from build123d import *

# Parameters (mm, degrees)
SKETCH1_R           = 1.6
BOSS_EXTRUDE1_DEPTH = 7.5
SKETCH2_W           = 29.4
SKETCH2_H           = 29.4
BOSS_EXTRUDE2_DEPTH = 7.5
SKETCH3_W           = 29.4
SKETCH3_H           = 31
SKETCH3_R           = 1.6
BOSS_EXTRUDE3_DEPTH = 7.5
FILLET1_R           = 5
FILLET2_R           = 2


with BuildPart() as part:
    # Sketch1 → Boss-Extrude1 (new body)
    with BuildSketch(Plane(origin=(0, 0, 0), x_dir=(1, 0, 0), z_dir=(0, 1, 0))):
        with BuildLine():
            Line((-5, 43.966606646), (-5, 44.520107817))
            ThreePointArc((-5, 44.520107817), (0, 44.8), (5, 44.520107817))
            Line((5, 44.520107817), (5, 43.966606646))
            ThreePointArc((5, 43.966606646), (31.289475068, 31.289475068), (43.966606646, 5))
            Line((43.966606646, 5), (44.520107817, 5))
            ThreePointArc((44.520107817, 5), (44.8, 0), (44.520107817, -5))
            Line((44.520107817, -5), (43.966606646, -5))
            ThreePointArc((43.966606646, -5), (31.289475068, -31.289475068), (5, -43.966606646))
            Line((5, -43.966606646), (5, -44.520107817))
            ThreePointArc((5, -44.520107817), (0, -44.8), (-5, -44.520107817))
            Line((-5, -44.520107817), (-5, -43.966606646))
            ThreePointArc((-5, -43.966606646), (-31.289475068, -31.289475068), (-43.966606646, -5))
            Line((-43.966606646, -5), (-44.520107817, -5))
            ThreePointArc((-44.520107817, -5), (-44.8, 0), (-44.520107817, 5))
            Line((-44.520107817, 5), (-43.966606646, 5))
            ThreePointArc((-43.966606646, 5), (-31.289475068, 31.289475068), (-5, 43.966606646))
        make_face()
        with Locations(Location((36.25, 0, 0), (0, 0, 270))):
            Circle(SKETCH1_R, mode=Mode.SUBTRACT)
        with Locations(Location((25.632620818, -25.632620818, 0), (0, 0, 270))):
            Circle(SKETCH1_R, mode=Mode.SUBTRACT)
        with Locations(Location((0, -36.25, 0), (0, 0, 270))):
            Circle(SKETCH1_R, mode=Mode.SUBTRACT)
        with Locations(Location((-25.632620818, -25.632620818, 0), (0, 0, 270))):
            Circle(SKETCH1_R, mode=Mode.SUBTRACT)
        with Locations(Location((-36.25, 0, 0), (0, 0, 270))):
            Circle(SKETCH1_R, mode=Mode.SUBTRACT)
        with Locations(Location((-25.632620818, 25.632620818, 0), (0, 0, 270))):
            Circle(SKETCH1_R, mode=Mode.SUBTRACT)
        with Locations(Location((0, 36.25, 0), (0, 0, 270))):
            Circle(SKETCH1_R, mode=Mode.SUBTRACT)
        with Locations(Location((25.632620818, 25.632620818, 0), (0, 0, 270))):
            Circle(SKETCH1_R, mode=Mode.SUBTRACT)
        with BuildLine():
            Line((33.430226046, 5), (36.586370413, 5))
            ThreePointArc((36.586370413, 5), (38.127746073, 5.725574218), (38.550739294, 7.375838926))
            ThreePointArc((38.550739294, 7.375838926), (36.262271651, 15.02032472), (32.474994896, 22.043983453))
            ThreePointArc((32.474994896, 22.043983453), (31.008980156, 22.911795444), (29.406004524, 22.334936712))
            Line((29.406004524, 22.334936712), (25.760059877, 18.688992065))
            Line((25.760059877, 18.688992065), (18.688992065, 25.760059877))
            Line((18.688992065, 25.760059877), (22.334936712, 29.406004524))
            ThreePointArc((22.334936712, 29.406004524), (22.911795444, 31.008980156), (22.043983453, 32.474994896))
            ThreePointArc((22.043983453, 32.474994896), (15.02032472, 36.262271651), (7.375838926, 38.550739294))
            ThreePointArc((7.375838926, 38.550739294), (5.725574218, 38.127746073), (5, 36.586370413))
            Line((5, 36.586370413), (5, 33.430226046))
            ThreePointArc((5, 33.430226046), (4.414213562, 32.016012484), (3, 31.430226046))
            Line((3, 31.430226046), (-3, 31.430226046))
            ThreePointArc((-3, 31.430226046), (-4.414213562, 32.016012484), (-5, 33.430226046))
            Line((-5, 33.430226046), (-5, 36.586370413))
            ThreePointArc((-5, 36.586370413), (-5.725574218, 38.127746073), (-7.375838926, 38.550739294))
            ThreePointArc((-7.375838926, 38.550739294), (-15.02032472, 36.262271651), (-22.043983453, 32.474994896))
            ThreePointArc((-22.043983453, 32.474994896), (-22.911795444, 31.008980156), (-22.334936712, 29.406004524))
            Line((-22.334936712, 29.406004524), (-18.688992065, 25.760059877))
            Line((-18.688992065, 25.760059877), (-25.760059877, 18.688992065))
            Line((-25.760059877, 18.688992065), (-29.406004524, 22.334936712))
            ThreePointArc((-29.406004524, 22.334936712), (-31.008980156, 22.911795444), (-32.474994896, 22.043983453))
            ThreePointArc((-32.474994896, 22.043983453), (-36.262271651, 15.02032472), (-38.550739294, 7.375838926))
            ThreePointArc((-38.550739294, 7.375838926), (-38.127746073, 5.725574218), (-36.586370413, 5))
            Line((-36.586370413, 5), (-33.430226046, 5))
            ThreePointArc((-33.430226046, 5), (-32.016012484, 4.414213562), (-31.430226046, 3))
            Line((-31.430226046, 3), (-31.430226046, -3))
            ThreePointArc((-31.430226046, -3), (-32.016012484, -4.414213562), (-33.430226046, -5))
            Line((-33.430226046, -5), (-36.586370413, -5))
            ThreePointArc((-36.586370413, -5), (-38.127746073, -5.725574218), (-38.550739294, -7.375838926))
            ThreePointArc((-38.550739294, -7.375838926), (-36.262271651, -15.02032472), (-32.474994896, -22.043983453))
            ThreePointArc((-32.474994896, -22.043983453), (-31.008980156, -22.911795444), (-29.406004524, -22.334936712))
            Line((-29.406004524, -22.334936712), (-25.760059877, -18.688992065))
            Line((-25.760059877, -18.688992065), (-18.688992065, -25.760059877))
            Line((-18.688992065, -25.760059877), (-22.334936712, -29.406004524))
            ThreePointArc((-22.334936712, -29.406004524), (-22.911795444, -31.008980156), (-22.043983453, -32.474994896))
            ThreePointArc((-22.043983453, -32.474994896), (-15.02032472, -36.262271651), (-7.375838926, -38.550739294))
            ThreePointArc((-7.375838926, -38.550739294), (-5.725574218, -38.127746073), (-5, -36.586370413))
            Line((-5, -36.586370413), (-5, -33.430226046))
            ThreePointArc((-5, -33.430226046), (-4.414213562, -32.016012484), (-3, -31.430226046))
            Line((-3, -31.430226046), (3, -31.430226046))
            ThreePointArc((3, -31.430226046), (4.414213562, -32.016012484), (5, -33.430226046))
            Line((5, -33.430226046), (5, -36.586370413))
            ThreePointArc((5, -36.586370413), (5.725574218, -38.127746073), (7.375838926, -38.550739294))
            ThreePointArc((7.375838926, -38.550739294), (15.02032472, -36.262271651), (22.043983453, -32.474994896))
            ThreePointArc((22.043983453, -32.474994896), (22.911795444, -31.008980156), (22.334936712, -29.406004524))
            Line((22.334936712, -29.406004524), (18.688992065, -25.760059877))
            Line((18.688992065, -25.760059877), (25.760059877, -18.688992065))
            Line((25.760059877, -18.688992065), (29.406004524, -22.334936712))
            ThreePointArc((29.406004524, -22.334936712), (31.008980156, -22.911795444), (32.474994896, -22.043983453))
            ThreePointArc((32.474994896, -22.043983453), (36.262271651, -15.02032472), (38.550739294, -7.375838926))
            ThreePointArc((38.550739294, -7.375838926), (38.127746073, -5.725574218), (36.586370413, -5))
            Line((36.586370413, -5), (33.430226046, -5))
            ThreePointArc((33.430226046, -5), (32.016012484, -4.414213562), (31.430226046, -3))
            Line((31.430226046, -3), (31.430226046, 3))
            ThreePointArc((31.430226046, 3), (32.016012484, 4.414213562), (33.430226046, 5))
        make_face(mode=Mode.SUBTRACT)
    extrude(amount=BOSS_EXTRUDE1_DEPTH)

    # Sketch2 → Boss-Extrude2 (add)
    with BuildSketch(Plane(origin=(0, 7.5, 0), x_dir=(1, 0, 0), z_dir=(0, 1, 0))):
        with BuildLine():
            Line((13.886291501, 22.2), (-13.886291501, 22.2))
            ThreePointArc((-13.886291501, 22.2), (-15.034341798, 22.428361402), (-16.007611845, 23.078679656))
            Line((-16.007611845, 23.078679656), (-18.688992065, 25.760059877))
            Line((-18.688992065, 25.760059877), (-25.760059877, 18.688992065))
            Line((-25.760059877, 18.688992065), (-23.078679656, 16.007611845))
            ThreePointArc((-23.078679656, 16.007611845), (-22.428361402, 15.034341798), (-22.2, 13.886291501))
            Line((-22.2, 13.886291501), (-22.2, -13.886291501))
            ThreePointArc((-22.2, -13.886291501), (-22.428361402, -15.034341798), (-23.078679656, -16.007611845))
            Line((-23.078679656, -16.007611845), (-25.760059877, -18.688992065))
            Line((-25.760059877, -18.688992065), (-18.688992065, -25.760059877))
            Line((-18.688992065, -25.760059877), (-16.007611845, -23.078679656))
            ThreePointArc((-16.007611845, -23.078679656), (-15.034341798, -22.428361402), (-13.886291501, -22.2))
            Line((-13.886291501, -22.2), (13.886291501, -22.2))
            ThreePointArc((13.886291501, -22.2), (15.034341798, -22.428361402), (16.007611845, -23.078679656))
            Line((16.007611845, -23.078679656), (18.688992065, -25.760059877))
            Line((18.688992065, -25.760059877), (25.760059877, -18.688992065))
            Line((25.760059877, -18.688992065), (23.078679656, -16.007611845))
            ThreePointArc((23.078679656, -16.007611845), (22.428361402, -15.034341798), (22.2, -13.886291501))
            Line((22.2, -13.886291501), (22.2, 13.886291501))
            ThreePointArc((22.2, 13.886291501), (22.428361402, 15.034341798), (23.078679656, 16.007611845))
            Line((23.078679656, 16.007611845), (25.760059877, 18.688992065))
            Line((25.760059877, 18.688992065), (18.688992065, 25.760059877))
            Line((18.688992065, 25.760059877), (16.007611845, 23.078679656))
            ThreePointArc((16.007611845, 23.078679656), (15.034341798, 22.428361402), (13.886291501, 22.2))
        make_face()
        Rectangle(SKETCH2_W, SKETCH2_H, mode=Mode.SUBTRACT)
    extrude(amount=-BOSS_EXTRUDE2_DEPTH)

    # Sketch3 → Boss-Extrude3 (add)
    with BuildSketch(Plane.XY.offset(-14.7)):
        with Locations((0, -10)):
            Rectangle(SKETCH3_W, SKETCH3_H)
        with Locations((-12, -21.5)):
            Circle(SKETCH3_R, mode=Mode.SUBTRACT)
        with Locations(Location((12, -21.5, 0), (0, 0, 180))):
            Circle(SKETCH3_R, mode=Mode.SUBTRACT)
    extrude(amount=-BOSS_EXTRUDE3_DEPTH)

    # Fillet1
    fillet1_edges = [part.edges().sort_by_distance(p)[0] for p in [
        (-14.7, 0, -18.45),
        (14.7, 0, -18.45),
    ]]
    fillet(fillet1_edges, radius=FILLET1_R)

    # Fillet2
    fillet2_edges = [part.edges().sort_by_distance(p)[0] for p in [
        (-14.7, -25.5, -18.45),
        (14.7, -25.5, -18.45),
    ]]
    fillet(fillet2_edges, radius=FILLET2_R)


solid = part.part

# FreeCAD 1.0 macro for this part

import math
import FreeCAD as App
import Part
import Sketcher
Q = App.Units.Quantity


def edges_at(feature, points):
    """Names of the edges that pass closest to the given points."""
    edges = feature.Shape.Edges
    near = lambda p: min(range(len(edges)), key=lambda i: edges[i].distToShape(Part.Vertex(*p))[0])
    return sorted({f"Edge{near(p) + 1}" for p in points})

doc = App.newDocument("Part")
body = doc.addObject("PartDesign::Body", "Body")

sketch1 = body.newObject("Sketcher::SketchObject", "Sketch")
sketch1.AttachmentSupport = (doc.getObject("XZ_Plane"), [""])
sketch1.MapMode = "FlatFace"
sketch1.addGeometry([
    Part.LineSegment(App.Vector(-5, -44.5, 0), App.Vector(-5, -44, 0)),
    Part.ArcOfCircle(Part.Circle(App.Vector(0, 0, 0), App.Vector(0, 0, 1), 44.2), math.radians(-174), math.radians(-96)),
    Part.LineSegment(App.Vector(-44, -5, 0), App.Vector(-44.5, -5, 0)),
    Part.ArcOfCircle(Part.Circle(App.Vector(0, 0, 0), App.Vector(0, 0, 1), 44.8), math.radians(173.59), math.radians(186.41)),
    Part.LineSegment(App.Vector(-44.5, 5, 0), App.Vector(-44, 5, 0)),
    Part.ArcOfCircle(Part.Circle(App.Vector(0, 0, 0), App.Vector(0, 0, 1), 44.2), math.radians(96), math.radians(174)),
    Part.LineSegment(App.Vector(-5, 44, 0), App.Vector(-5, 44.5, 0)),
    Part.ArcOfCircle(Part.Circle(App.Vector(0, 0, 0), App.Vector(0, 0, 1), 44.8), math.radians(83.59), math.radians(96.41)),
    Part.LineSegment(App.Vector(5, 44.5, 0), App.Vector(5, 44, 0)),
    Part.ArcOfCircle(Part.Circle(App.Vector(0, 0, 0), App.Vector(0, 0, 1), 44.2), math.radians(6), math.radians(84)),
    Part.LineSegment(App.Vector(44, 5, 0), App.Vector(44.5, 5, 0)),
    Part.ArcOfCircle(Part.Circle(App.Vector(0, 0, 0), App.Vector(0, 0, 1), 44.8), math.radians(-6.41), math.radians(6.41)),
    Part.LineSegment(App.Vector(44.5, -5, 0), App.Vector(44, -5, 0)),
    Part.ArcOfCircle(Part.Circle(App.Vector(0, 0, 0), App.Vector(0, 0, 1), 44.2), math.radians(-84), math.radians(-6)),
    Part.LineSegment(App.Vector(5, -44, 0), App.Vector(5, -44.5, 0)),
    Part.ArcOfCircle(Part.Circle(App.Vector(0, 0, 0), App.Vector(0, 0, 1), 44.8), math.radians(-96.41), math.radians(-83.59)),
    Part.Circle(App.Vector(25.6, 25.6, 0), App.Vector(0, 0, 1), 1.6),
    Part.Circle(App.Vector(0, 36.2, 0), App.Vector(0, 0, 1), 1.6),
    Part.Circle(App.Vector(-25.6, 25.6, 0), App.Vector(0, 0, 1), 1.6),
    Part.Circle(App.Vector(36.2, 0, 0), App.Vector(0, 0, 1), 1.6),
    Part.Circle(App.Vector(25.6, -25.6, 0), App.Vector(0, 0, 1), 1.6),
    Part.ArcOfCircle(Part.Circle(App.Vector(33.4, -3, 0), App.Vector(0, 0, 1), 2), math.radians(-180), math.radians(-90)),
    Part.LineSegment(App.Vector(31.4, -3, 0), App.Vector(31.4, 3, 0)),
    Part.ArcOfCircle(Part.Circle(App.Vector(33.4, 3, 0), App.Vector(0, 0, 1), 2), math.radians(90), math.radians(180)),
    Part.LineSegment(App.Vector(33.4, 5, 0), App.Vector(36.6, 5, 0)),
    Part.ArcOfCircle(Part.Circle(App.Vector(36.6, 7, 0), App.Vector(0, 0, 1), 2), math.radians(-90), math.radians(11)),
    Part.ArcOfCircle(Part.Circle(App.Vector(0, 0, 0), App.Vector(0, 0, 1), 39.2), math.radians(11), math.radians(34)),
    Part.ArcOfCircle(Part.Circle(App.Vector(30.8, 20.9, 0), App.Vector(0, 0, 1), 2), math.radians(34), math.radians(135)),
    Part.LineSegment(App.Vector(29.4, 22.3, 0), App.Vector(25.8, 18.7, 0)),
    Part.LineSegment(App.Vector(25.8, 18.7, 0), App.Vector(18.7, 25.8, 0)),
    Part.LineSegment(App.Vector(18.7, 25.8, 0), App.Vector(22.3, 29.4, 0)),
    Part.ArcOfCircle(Part.Circle(App.Vector(20.9, 30.8, 0), App.Vector(0, 0, 1), 2), math.radians(-45), math.radians(56)),
    Part.ArcOfCircle(Part.Circle(App.Vector(0, 0, 0), App.Vector(0, 0, 1), 39.2), math.radians(56), math.radians(79)),
    Part.ArcOfCircle(Part.Circle(App.Vector(7, 36.6, 0), App.Vector(0, 0, 1), 2), math.radians(79), math.radians(180)),
    Part.LineSegment(App.Vector(5, 36.6, 0), App.Vector(5, 33.4, 0)),
    Part.ArcOfCircle(Part.Circle(App.Vector(3, 33.4, 0), App.Vector(0, 0, 1), 2), math.radians(-90), math.radians(0)),
    Part.LineSegment(App.Vector(3, 31.4, 0), App.Vector(-3, 31.4, 0)),
    Part.ArcOfCircle(Part.Circle(App.Vector(-3, 33.4, 0), App.Vector(0, 0, 1), 2), math.radians(-180), math.radians(-90)),
    Part.LineSegment(App.Vector(-5, 33.4, 0), App.Vector(-5, 36.6, 0)),
    Part.ArcOfCircle(Part.Circle(App.Vector(-7, 36.6, 0), App.Vector(0, 0, 1), 2), math.radians(0), math.radians(101)),
    Part.ArcOfCircle(Part.Circle(App.Vector(0, 0, 0), App.Vector(0, 0, 1), 39.2), math.radians(101), math.radians(124)),
    Part.ArcOfCircle(Part.Circle(App.Vector(-20.9, 30.8, 0), App.Vector(0, 0, 1), 2), math.radians(124), math.radians(225)),
    Part.LineSegment(App.Vector(-22.3, 29.4, 0), App.Vector(-18.7, 25.8, 0)),
    Part.LineSegment(App.Vector(-18.7, 25.8, 0), App.Vector(-25.8, 18.7, 0)),
    Part.LineSegment(App.Vector(-25.8, 18.7, 0), App.Vector(-29.4, 22.3, 0)),
    Part.ArcOfCircle(Part.Circle(App.Vector(-30.8, 20.9, 0), App.Vector(0, 0, 1), 2), math.radians(45), math.radians(146)),
    Part.ArcOfCircle(Part.Circle(App.Vector(0, 0, 0), App.Vector(0, 0, 1), 39.2), math.radians(146), math.radians(169)),
    Part.ArcOfCircle(Part.Circle(App.Vector(-36.6, 7, 0), App.Vector(0, 0, 1), 2), math.radians(169), math.radians(270)),
    Part.LineSegment(App.Vector(-36.6, 5, 0), App.Vector(-33.4, 5, 0)),
    Part.ArcOfCircle(Part.Circle(App.Vector(-33.4, 3, 0), App.Vector(0, 0, 1), 2), math.radians(0), math.radians(90)),
    Part.LineSegment(App.Vector(-31.4, 3, 0), App.Vector(-31.4, -3, 0)),
    Part.ArcOfCircle(Part.Circle(App.Vector(-33.4, -3, 0), App.Vector(0, 0, 1), 2), math.radians(-90), math.radians(0)),
    Part.LineSegment(App.Vector(-33.4, -5, 0), App.Vector(-36.6, -5, 0)),
    Part.ArcOfCircle(Part.Circle(App.Vector(-36.6, -7, 0), App.Vector(0, 0, 1), 2), math.radians(90), math.radians(191)),
    Part.ArcOfCircle(Part.Circle(App.Vector(0, 0, 0), App.Vector(0, 0, 1), 39.2), math.radians(-169), math.radians(-146)),
    Part.ArcOfCircle(Part.Circle(App.Vector(-30.8, -20.9, 0), App.Vector(0, 0, 1), 2), math.radians(-146), math.radians(-45)),
    Part.LineSegment(App.Vector(-29.4, -22.3, 0), App.Vector(-25.8, -18.7, 0)),
    Part.LineSegment(App.Vector(-25.8, -18.7, 0), App.Vector(-18.7, -25.8, 0)),
    Part.LineSegment(App.Vector(-18.7, -25.8, 0), App.Vector(-22.3, -29.4, 0)),
    Part.ArcOfCircle(Part.Circle(App.Vector(-20.9, -30.8, 0), App.Vector(0, 0, 1), 2), math.radians(135), math.radians(236)),
    Part.ArcOfCircle(Part.Circle(App.Vector(0, 0, 0), App.Vector(0, 0, 1), 39.2), math.radians(-124), math.radians(-101)),
    Part.ArcOfCircle(Part.Circle(App.Vector(-7, -36.6, 0), App.Vector(0, 0, 1), 2), math.radians(-101), math.radians(0)),
    Part.LineSegment(App.Vector(-5, -36.6, 0), App.Vector(-5, -33.4, 0)),
    Part.ArcOfCircle(Part.Circle(App.Vector(-3, -33.4, 0), App.Vector(0, 0, 1), 2), math.radians(90), math.radians(180)),
    Part.LineSegment(App.Vector(-3, -31.4, 0), App.Vector(3, -31.4, 0)),
    Part.ArcOfCircle(Part.Circle(App.Vector(3, -33.4, 0), App.Vector(0, 0, 1), 2), math.radians(0), math.radians(90)),
    Part.LineSegment(App.Vector(5, -33.4, 0), App.Vector(5, -36.6, 0)),
    Part.ArcOfCircle(Part.Circle(App.Vector(7, -36.6, 0), App.Vector(0, 0, 1), 2), math.radians(180), math.radians(281)),
    Part.ArcOfCircle(Part.Circle(App.Vector(0, 0, 0), App.Vector(0, 0, 1), 39.2), math.radians(-79), math.radians(-56)),
    Part.ArcOfCircle(Part.Circle(App.Vector(20.9, -30.8, 0), App.Vector(0, 0, 1), 2), math.radians(-56), math.radians(45)),
    Part.LineSegment(App.Vector(22.3, -29.4, 0), App.Vector(18.7, -25.8, 0)),
    Part.LineSegment(App.Vector(18.7, -25.8, 0), App.Vector(25.8, -18.7, 0)),
    Part.LineSegment(App.Vector(25.8, -18.7, 0), App.Vector(29.4, -22.3, 0)),
    Part.ArcOfCircle(Part.Circle(App.Vector(30.8, -20.9, 0), App.Vector(0, 0, 1), 2), math.radians(-135), math.radians(-34)),
    Part.ArcOfCircle(Part.Circle(App.Vector(0, 0, 0), App.Vector(0, 0, 1), 39.2), math.radians(-34), math.radians(-11)),
    Part.ArcOfCircle(Part.Circle(App.Vector(36.6, -7, 0), App.Vector(0, 0, 1), 2), math.radians(-11), math.radians(90)),
    Part.LineSegment(App.Vector(36.6, -5, 0), App.Vector(33.4, -5, 0)),
    Part.Circle(App.Vector(-36.2, 0, 0), App.Vector(0, 0, 1), 1.6),
    Part.Circle(App.Vector(0, -36.2, 0), App.Vector(0, 0, 1), 1.6),
    Part.Circle(App.Vector(-25.6, -25.6, 0), App.Vector(0, 0, 1), 1.6),
], False)
sketch1.addConstraint([
    Sketcher.Constraint("Coincident", 0, 2, 1, 2),
    Sketcher.Constraint("Coincident", 1, 1, 2, 1),
    Sketcher.Constraint("Coincident", 2, 2, 3, 2),
    Sketcher.Constraint("Coincident", 3, 1, 4, 1),
    Sketcher.Constraint("Coincident", 4, 2, 5, 2),
    Sketcher.Constraint("Coincident", 5, 1, 6, 1),
    Sketcher.Constraint("Coincident", 6, 2, 7, 2),
    Sketcher.Constraint("Coincident", 7, 1, 8, 1),
    Sketcher.Constraint("Coincident", 8, 2, 9, 2),
    Sketcher.Constraint("Coincident", 9, 1, 10, 1),
    Sketcher.Constraint("Coincident", 10, 2, 11, 2),
    Sketcher.Constraint("Coincident", 11, 1, 12, 1),
    Sketcher.Constraint("Coincident", 12, 2, 13, 2),
    Sketcher.Constraint("Coincident", 13, 1, 14, 1),
    Sketcher.Constraint("Coincident", 14, 2, 15, 2),
    Sketcher.Constraint("Coincident", 15, 1, 0, 1),
    Sketcher.Constraint("Tangent", 21, 1, 22, 1),
    Sketcher.Constraint("Tangent", 22, 2, 23, 2),
    Sketcher.Constraint("Tangent", 23, 1, 24, 1),
    Sketcher.Constraint("Tangent", 24, 2, 25, 1),
    Sketcher.Constraint("Tangent", 25, 2, 26, 1),
    Sketcher.Constraint("Tangent", 26, 2, 27, 1),
    Sketcher.Constraint("Tangent", 27, 2, 28, 1),
    Sketcher.Constraint("Coincident", 28, 2, 29, 1),
    Sketcher.Constraint("Coincident", 29, 2, 30, 1),
    Sketcher.Constraint("Tangent", 30, 2, 31, 1),
    Sketcher.Constraint("Tangent", 31, 2, 32, 1),
    Sketcher.Constraint("Tangent", 32, 2, 33, 1),
    Sketcher.Constraint("Tangent", 33, 2, 34, 1),
    Sketcher.Constraint("Tangent", 34, 2, 35, 2),
    Sketcher.Constraint("Tangent", 35, 1, 36, 1),
    Sketcher.Constraint("Tangent", 36, 2, 37, 2),
    Sketcher.Constraint("Tangent", 37, 1, 38, 1),
    Sketcher.Constraint("Tangent", 38, 2, 39, 1),
    Sketcher.Constraint("Tangent", 39, 2, 40, 1),
    Sketcher.Constraint("Tangent", 40, 2, 41, 1),
    Sketcher.Constraint("Tangent", 41, 2, 42, 1),
    Sketcher.Constraint("Coincident", 42, 2, 43, 1),
    Sketcher.Constraint("Coincident", 43, 2, 44, 1),
    Sketcher.Constraint("Tangent", 44, 2, 45, 1),
    Sketcher.Constraint("Tangent", 45, 2, 46, 1),
    Sketcher.Constraint("Tangent", 46, 2, 47, 1),
    Sketcher.Constraint("Tangent", 47, 2, 48, 1),
    Sketcher.Constraint("Tangent", 48, 2, 49, 2),
    Sketcher.Constraint("Tangent", 49, 1, 50, 1),
    Sketcher.Constraint("Tangent", 50, 2, 51, 2),
    Sketcher.Constraint("Tangent", 51, 1, 52, 1),
    Sketcher.Constraint("Tangent", 52, 2, 53, 1),
    Sketcher.Constraint("Tangent", 53, 2, 54, 1),
    Sketcher.Constraint("Tangent", 54, 2, 55, 1),
    Sketcher.Constraint("Tangent", 55, 2, 56, 1),
    Sketcher.Constraint("Coincident", 56, 2, 57, 1),
    Sketcher.Constraint("Coincident", 57, 2, 58, 1),
    Sketcher.Constraint("Tangent", 58, 2, 59, 1),
    Sketcher.Constraint("Tangent", 59, 2, 60, 1),
    Sketcher.Constraint("Tangent", 60, 2, 61, 1),
    Sketcher.Constraint("Tangent", 61, 2, 62, 1),
    Sketcher.Constraint("Tangent", 62, 2, 63, 2),
    Sketcher.Constraint("Tangent", 63, 1, 64, 1),
    Sketcher.Constraint("Tangent", 64, 2, 65, 2),
    Sketcher.Constraint("Tangent", 65, 1, 66, 1),
    Sketcher.Constraint("Tangent", 66, 2, 67, 1),
    Sketcher.Constraint("Tangent", 67, 2, 68, 1),
    Sketcher.Constraint("Tangent", 68, 2, 69, 1),
    Sketcher.Constraint("Tangent", 69, 2, 70, 1),
    Sketcher.Constraint("Coincident", 70, 2, 71, 1),
    Sketcher.Constraint("Coincident", 71, 2, 72, 1),
    Sketcher.Constraint("Tangent", 72, 2, 73, 1),
    Sketcher.Constraint("Tangent", 73, 2, 74, 1),
    Sketcher.Constraint("Tangent", 74, 2, 75, 1),
    Sketcher.Constraint("Tangent", 75, 2, 76, 1),
    Sketcher.Constraint("Tangent", 76, 2, 21, 2),
    Sketcher.Constraint("Vertical", 0),
    Sketcher.Constraint("Horizontal", 2),
    Sketcher.Constraint("Horizontal", 4),
    Sketcher.Constraint("Vertical", 6),
    Sketcher.Constraint("Vertical", 8),
    Sketcher.Constraint("Horizontal", 10),
    Sketcher.Constraint("Horizontal", 12),
    Sketcher.Constraint("Vertical", 14),
    Sketcher.Constraint("Vertical", 22),
    Sketcher.Constraint("Horizontal", 24),
    Sketcher.Constraint("Vertical", 34),
    Sketcher.Constraint("Horizontal", 36),
    Sketcher.Constraint("Vertical", 38),
    Sketcher.Constraint("Horizontal", 48),
    Sketcher.Constraint("Vertical", 50),
    Sketcher.Constraint("Horizontal", 52),
    Sketcher.Constraint("Vertical", 62),
    Sketcher.Constraint("Horizontal", 64),
    Sketcher.Constraint("Vertical", 66),
    Sketcher.Constraint("Horizontal", 76),
    Sketcher.Constraint("Coincident", 1, 3, -1, 1),
    Sketcher.Constraint("Coincident", 3, 3, -1, 1),
    Sketcher.Constraint("Coincident", 5, 3, -1, 1),
    Sketcher.Constraint("Coincident", 7, 3, -1, 1),
    Sketcher.Constraint("Coincident", 9, 3, -1, 1),
    Sketcher.Constraint("Coincident", 11, 3, -1, 1),
    Sketcher.Constraint("Coincident", 13, 3, -1, 1),
    Sketcher.Constraint("Coincident", 15, 3, -1, 1),
    Sketcher.Constraint("Coincident", 26, 3, -1, 1),
    Sketcher.Constraint("Coincident", 32, 3, -1, 1),
    Sketcher.Constraint("Coincident", 40, 3, -1, 1),
    Sketcher.Constraint("Coincident", 46, 3, -1, 1),
    Sketcher.Constraint("Coincident", 54, 3, -1, 1),
    Sketcher.Constraint("Coincident", 60, 3, -1, 1),
    Sketcher.Constraint("Coincident", 68, 3, -1, 1),
    Sketcher.Constraint("Coincident", 74, 3, -1, 1),
    Sketcher.Constraint("Equal", 1, 5),
    Sketcher.Constraint("Equal", 3, 7),
    Sketcher.Constraint("Equal", 5, 9),
    Sketcher.Constraint("Equal", 7, 11),
    Sketcher.Constraint("Equal", 9, 13),
    Sketcher.Constraint("Equal", 11, 15),
    Sketcher.Constraint("Equal", 16, 17),
    Sketcher.Constraint("Equal", 17, 18),
    Sketcher.Constraint("Equal", 18, 19),
    Sketcher.Constraint("Equal", 19, 20),
    Sketcher.Constraint("Equal", 21, 23),
    Sketcher.Constraint("Equal", 23, 25),
    Sketcher.Constraint("Equal", 25, 27),
    Sketcher.Constraint("Equal", 27, 31),
    Sketcher.Constraint("Equal", 26, 32),
    Sketcher.Constraint("Equal", 31, 33),
    Sketcher.Constraint("Equal", 33, 35),
    Sketcher.Constraint("Equal", 35, 37),
    Sketcher.Constraint("Equal", 37, 39),
    Sketcher.Constraint("Equal", 32, 40),
    Sketcher.Constraint("Equal", 39, 41),
    Sketcher.Constraint("Equal", 41, 45),
    Sketcher.Constraint("Equal", 40, 46),
    Sketcher.Constraint("Equal", 45, 47),
    Sketcher.Constraint("Equal", 47, 49),
    Sketcher.Constraint("Equal", 49, 51),
    Sketcher.Constraint("Equal", 51, 53),
    Sketcher.Constraint("Equal", 46, 54),
    Sketcher.Constraint("Equal", 53, 55),
    Sketcher.Constraint("Equal", 55, 59),
    Sketcher.Constraint("Equal", 54, 60),
    Sketcher.Constraint("Equal", 59, 61),
    Sketcher.Constraint("Equal", 61, 63),
    Sketcher.Constraint("Equal", 63, 65),
    Sketcher.Constraint("Equal", 65, 67),
    Sketcher.Constraint("Equal", 60, 68),
    Sketcher.Constraint("Equal", 67, 69),
    Sketcher.Constraint("Equal", 69, 73),
    Sketcher.Constraint("Equal", 68, 74),
    Sketcher.Constraint("Equal", 73, 75),
    Sketcher.Constraint("Equal", 20, 77),
    Sketcher.Constraint("Equal", 77, 78),
    Sketcher.Constraint("Equal", 78, 79),
    Sketcher.Constraint("Symmetric", 18, 3, 20, 3, -1, 1),
    Sketcher.Constraint("Symmetric", 21, 3, 49, 3, -1, 1),
    Sketcher.Constraint("Symmetric", 35, 3, 63, 3, -1, 1),
    Sketcher.Constraint("Symmetric", 19, 3, 77, 3, -1, 1),
    Sketcher.Constraint("Symmetric", 17, 3, 78, 3, -1, 1),
    Sketcher.Constraint("Symmetric", 16, 3, 79, 3, -1, 1),
    Sketcher.Constraint("Symmetric", 27, 2, 55, 2, -1, 1),
    Sketcher.Constraint("Symmetric", 29, 2, 57, 2, -1, 1),
    Sketcher.Constraint("Symmetric", 41, 2, 69, 2, -1, 1),
    Sketcher.Constraint("Symmetric", 43, 2, 71, 2, -1, 1),
    Sketcher.Constraint("Symmetric", 16, 3, 18, 3, -2),
    Sketcher.Constraint("Symmetric", 30, 2, 41, 2, -2),
    Sketcher.Constraint("Symmetric", 28, 2, 43, 2, -2),
    Sketcher.Constraint("PointOnObject", 17, 3, -2),
    Sketcher.Constraint("PointOnObject", 19, 3, -1),
    Sketcher.Constraint("Perpendicular", 28, 29),
    Sketcher.Constraint("Perpendicular", 29, 30),
    Sketcher.Constraint("Perpendicular", 30, 42),
    Sketcher.Constraint("Perpendicular", 42, 43),
    Sketcher.Constraint("Perpendicular", 43, 44),
    Sketcher.Constraint("Perpendicular", 56, 57),
    Sketcher.Constraint("Perpendicular", 57, 58),
    Sketcher.Constraint("Perpendicular", 70, 71),
    Sketcher.Constraint("Perpendicular", 71, 72),
    Sketcher.Constraint("Horizontal", 33, 3, 39, 3),
    Sketcher.Constraint("Horizontal", 25, 3, 47, 3),
    Sketcher.Constraint("Horizontal", 21, 3, 51, 3),
    Sketcher.Constraint("Horizontal", 61, 3, 67, 3),
    Sketcher.Constraint("Horizontal", 6, 2, 7, 1),
    Sketcher.Constraint("Horizontal", 4, 2, 9, 1),
    Sketcher.Constraint("Horizontal", 2, 2, 11, 1),
    Sketcher.Constraint("Horizontal", 0, 2, 13, 1),
    Sketcher.Constraint("Horizontal", 10, 2, 23, 1),
    Sketcher.Constraint("Horizontal", 12, 2, 51, 1),
    Sketcher.Constraint("Vertical", 0, 2, 5, 1),
    Sketcher.Constraint("Vertical", 14, 2, 33, 2),
    Sketcher.Constraint("Equal", 64, 22),
    Sketcher.Constraint("Equal", 76, 34),
    Sketcher.Constraint("Equal", 28, 30),
    Sketcher.Constraint("Radius", 21, Q("2 mm")),
    Sketcher.Constraint("Diameter", 16, Q("3.2 mm")),
    Sketcher.Constraint("Radius", 3, Q("44.8 mm")),
    Sketcher.Constraint("DistanceX", 36, 2, 36, 1, Q("6 mm")),
    Sketcher.Constraint("Radius", 1, Q("44.25 mm")),
    Sketcher.Constraint("Radius", 26, Q("39.25 mm")),
    Sketcher.Constraint("Distance", 29, Q("10 mm")),
    Sketcher.Constraint("DistanceY", -1, 1, 17, 3, Q("36.25 mm")),
    Sketcher.Constraint("DistanceX", -1, 1, 19, 3, Q("36.25 mm")),
    Sketcher.Constraint("DistanceX", 24, 1, 24, 2, Q("3.156144 mm")),
    Sketcher.Constraint("DistanceX", -1, 1, 16, 3, Q("25.632621 mm")),
    Sketcher.Constraint("DistanceY", -1, 1, 16, 3, Q("25.632621 mm")),
    Sketcher.Constraint("DistanceX", -1, 1, 28, 2, Q("25.76006 mm")),
])
pad1 = body.newObject("PartDesign::Pad", "Pad")
pad1.Profile = sketch1
pad1.Length = 7.5
pad1.Reversed = True

sketch2 = body.newObject("Sketcher::SketchObject", "Sketch001")
sketch2.AttachmentSupport = (doc.getObject("XZ_Plane"), [""])
sketch2.MapMode = "FlatFace"
sketch2.AttachmentOffset = App.Placement(App.Vector(0, 0, -7.5), App.Rotation())
sketch2.addGeometry([
    Part.LineSegment(App.Vector(13.9, -22.2, 0), App.Vector(-13.9, -22.2, 0)),
    Part.ArcOfCircle(Part.Circle(App.Vector(-13.9, -25.2, 0), App.Vector(0, 0, 1), 3), math.radians(90), math.radians(135)),
    Part.LineSegment(App.Vector(-16, -23.1, 0), App.Vector(-18.7, -25.8, 0)),
    Part.LineSegment(App.Vector(-18.7, -25.8, 0), App.Vector(-25.8, -18.7, 0)),
    Part.LineSegment(App.Vector(-25.8, -18.7, 0), App.Vector(-23.1, -16, 0)),
    Part.ArcOfCircle(Part.Circle(App.Vector(-25.2, -13.9, 0), App.Vector(0, 0, 1), 3), math.radians(-45), math.radians(0)),
    Part.LineSegment(App.Vector(-22.2, -13.9, 0), App.Vector(-22.2, 13.9, 0)),
    Part.ArcOfCircle(Part.Circle(App.Vector(-25.2, 13.9, 0), App.Vector(0, 0, 1), 3), math.radians(0), math.radians(45)),
    Part.LineSegment(App.Vector(-23.1, 16, 0), App.Vector(-25.8, 18.7, 0)),
    Part.LineSegment(App.Vector(-25.8, 18.7, 0), App.Vector(-18.7, 25.8, 0)),
    Part.LineSegment(App.Vector(-18.7, 25.8, 0), App.Vector(-16, 23.1, 0)),
    Part.ArcOfCircle(Part.Circle(App.Vector(-13.9, 25.2, 0), App.Vector(0, 0, 1), 3), math.radians(-135), math.radians(-90)),
    Part.LineSegment(App.Vector(-13.9, 22.2, 0), App.Vector(13.9, 22.2, 0)),
    Part.ArcOfCircle(Part.Circle(App.Vector(13.9, 25.2, 0), App.Vector(0, 0, 1), 3), math.radians(-90), math.radians(-45)),
    Part.LineSegment(App.Vector(16, 23.1, 0), App.Vector(18.7, 25.8, 0)),
    Part.LineSegment(App.Vector(18.7, 25.8, 0), App.Vector(25.8, 18.7, 0)),
    Part.LineSegment(App.Vector(25.8, 18.7, 0), App.Vector(23.1, 16, 0)),
    Part.ArcOfCircle(Part.Circle(App.Vector(25.2, 13.9, 0), App.Vector(0, 0, 1), 3), math.radians(135), math.radians(180)),
    Part.LineSegment(App.Vector(22.2, 13.9, 0), App.Vector(22.2, -13.9, 0)),
    Part.ArcOfCircle(Part.Circle(App.Vector(25.2, -13.9, 0), App.Vector(0, 0, 1), 3), math.radians(180), math.radians(225)),
    Part.LineSegment(App.Vector(23.1, -16, 0), App.Vector(25.8, -18.7, 0)),
    Part.LineSegment(App.Vector(25.8, -18.7, 0), App.Vector(18.7, -25.8, 0)),
    Part.LineSegment(App.Vector(18.7, -25.8, 0), App.Vector(16, -23.1, 0)),
    Part.ArcOfCircle(Part.Circle(App.Vector(13.9, -25.2, 0), App.Vector(0, 0, 1), 3), math.radians(45), math.radians(90)),
    Part.LineSegment(App.Vector(14.7, 14.7, 0), App.Vector(-14.7, 14.7, 0)),
    Part.LineSegment(App.Vector(-14.7, 14.7, 0), App.Vector(-14.7, -14.7, 0)),
    Part.LineSegment(App.Vector(-14.7, -14.7, 0), App.Vector(14.7, -14.7, 0)),
    Part.LineSegment(App.Vector(14.7, -14.7, 0), App.Vector(14.7, 14.7, 0)),
], False)
sketch2.addConstraint([
    Sketcher.Constraint("Tangent", 0, 2, 1, 1),
    Sketcher.Constraint("Tangent", 1, 2, 2, 1),
    Sketcher.Constraint("Coincident", 2, 2, 3, 1),
    Sketcher.Constraint("Coincident", 3, 2, 4, 1),
    Sketcher.Constraint("Tangent", 4, 2, 5, 1),
    Sketcher.Constraint("Tangent", 5, 2, 6, 1),
    Sketcher.Constraint("Tangent", 6, 2, 7, 1),
    Sketcher.Constraint("Tangent", 7, 2, 8, 1),
    Sketcher.Constraint("Coincident", 8, 2, 9, 1),
    Sketcher.Constraint("Coincident", 9, 2, 10, 1),
    Sketcher.Constraint("Tangent", 10, 2, 11, 1),
    Sketcher.Constraint("Tangent", 11, 2, 12, 1),
    Sketcher.Constraint("Tangent", 12, 2, 13, 1),
    Sketcher.Constraint("Tangent", 13, 2, 14, 1),
    Sketcher.Constraint("Coincident", 14, 2, 15, 1),
    Sketcher.Constraint("Coincident", 15, 2, 16, 1),
    Sketcher.Constraint("Tangent", 16, 2, 17, 1),
    Sketcher.Constraint("Tangent", 17, 2, 18, 1),
    Sketcher.Constraint("Tangent", 18, 2, 19, 1),
    Sketcher.Constraint("Tangent", 19, 2, 20, 1),
    Sketcher.Constraint("Coincident", 20, 2, 21, 1),
    Sketcher.Constraint("Coincident", 21, 2, 22, 1),
    Sketcher.Constraint("Tangent", 22, 2, 23, 1),
    Sketcher.Constraint("Tangent", 23, 2, 0, 1),
    Sketcher.Constraint("Coincident", 24, 2, 25, 1),
    Sketcher.Constraint("Coincident", 25, 2, 26, 1),
    Sketcher.Constraint("Coincident", 26, 2, 27, 1),
    Sketcher.Constraint("Coincident", 27, 2, 24, 1),
    Sketcher.Constraint("Horizontal", 0),
    Sketcher.Constraint("Vertical", 6),
    Sketcher.Constraint("Horizontal", 12),
    Sketcher.Constraint("Vertical", 18),
    Sketcher.Constraint("Horizontal", 24),
    Sketcher.Constraint("Vertical", 25),
    Sketcher.Constraint("Horizontal", 26),
    Sketcher.Constraint("Vertical", 27),
    Sketcher.Constraint("Equal", 1, 5),
    Sketcher.Constraint("Equal", 5, 7),
    Sketcher.Constraint("Equal", 7, 11),
    Sketcher.Constraint("Equal", 11, 13),
    Sketcher.Constraint("Equal", 13, 17),
    Sketcher.Constraint("Equal", 17, 19),
    Sketcher.Constraint("Equal", 19, 23),
    Sketcher.Constraint("Symmetric", 1, 3, 13, 3, -1, 1),
    Sketcher.Constraint("Symmetric", 5, 3, 17, 3, -1, 1),
    Sketcher.Constraint("Symmetric", 2, 2, 14, 2, -1, 1),
    Sketcher.Constraint("Symmetric", 3, 2, 15, 2, -1, 1),
    Sketcher.Constraint("Symmetric", 7, 2, 19, 2, -1, 1),
    Sketcher.Constraint("Symmetric", 9, 2, 21, 2, -1, 1),
    Sketcher.Constraint("Symmetric", 24, 2, 26, 2, -1, 1),
    Sketcher.Constraint("Symmetric", 10, 2, 13, 2, -2),
    Sketcher.Constraint("Symmetric", 8, 2, 15, 2, -2),
    Sketcher.Constraint("Perpendicular", 2, 3),
    Sketcher.Constraint("Perpendicular", 3, 4),
    Sketcher.Constraint("Perpendicular", 4, 8),
    Sketcher.Constraint("Perpendicular", 8, 9),
    Sketcher.Constraint("Perpendicular", 9, 10),
    Sketcher.Constraint("Perpendicular", 20, 21),
    Sketcher.Constraint("Perpendicular", 21, 22),
    Sketcher.Constraint("Equal", 12, 6),
    Sketcher.Constraint("Equal", 26, 25),
    Sketcher.Constraint("Equal", 2, 4),
    Sketcher.Constraint("Radius", 1, Q("3 mm")),
    Sketcher.Constraint("Distance", 3, Q("10 mm")),
    Sketcher.Constraint("DistanceX", 24, 2, 24, 1, Q("29.4 mm")),
    Sketcher.Constraint("DistanceY", 1, 3, -1, 1, Q("25.2 mm")),
    Sketcher.Constraint("DistanceX", 2, 2, 1, 3, Q("4.802701 mm")),
])
pad2 = body.newObject("PartDesign::Pad", "Pad001")
pad2.Profile = sketch2
pad2.Length = 7.5

sketch3 = body.newObject("Sketcher::SketchObject", "Sketch002")
sketch3.AttachmentSupport = (doc.getObject("XY_Plane"), [""])
sketch3.MapMode = "FlatFace"
sketch3.AttachmentOffset = App.Placement(App.Vector(0, 0, -14.7), App.Rotation())
sketch3.addGeometry([
    Part.LineSegment(App.Vector(-14.7, 5.5, 0), App.Vector(-14.7, -25.5, 0)),
    Part.LineSegment(App.Vector(-14.7, -25.5, 0), App.Vector(14.7, -25.5, 0)),
    Part.LineSegment(App.Vector(14.7, -25.5, 0), App.Vector(14.7, 5.5, 0)),
    Part.LineSegment(App.Vector(14.7, 5.5, 0), App.Vector(-14.7, 5.5, 0)),
    Part.Circle(App.Vector(-12, -21.5, 0), App.Vector(0, 0, 1), 1.6),
    Part.Circle(App.Vector(12, -21.5, 0), App.Vector(0, 0, 1), 1.6),
], False)
sketch3.addConstraint([
    Sketcher.Constraint("Coincident", 0, 2, 1, 1),
    Sketcher.Constraint("Coincident", 1, 2, 2, 1),
    Sketcher.Constraint("Coincident", 2, 2, 3, 1),
    Sketcher.Constraint("Coincident", 3, 2, 0, 1),
    Sketcher.Constraint("Vertical", 0),
    Sketcher.Constraint("Horizontal", 1),
    Sketcher.Constraint("Vertical", 2),
    Sketcher.Constraint("Horizontal", 3),
    Sketcher.Constraint("Equal", 4, 5),
    Sketcher.Constraint("Symmetric", 4, 3, 5, 3, -2),
    Sketcher.Constraint("Diameter", 4, Q("3.2 mm")),
    Sketcher.Constraint("DistanceY", 0, 2, 0, 1, Q("31 mm")),
    Sketcher.Constraint("DistanceX", 1, 1, 1, 2, Q("29.4 mm")),
    Sketcher.Constraint("DistanceX", 4, 3, -1, 1, Q("12 mm")),
    Sketcher.Constraint("DistanceY", 0, 2, 4, 3, Q("4 mm")),
    Sketcher.Constraint("DistanceY", 4, 3, -1, 1, Q("21.5 mm")),
    Sketcher.Constraint("DistanceX", 0, 2, -1, 1, Q("14.7 mm")),
])
pad3 = body.newObject("PartDesign::Pad", "Pad002")
pad3.Profile = sketch3
pad3.Length = 7.5
pad3.Reversed = True
doc.recompute()

fillet = body.newObject("PartDesign::Fillet", "Fillet")
fillet.Base = (pad3, edges_at(pad3, [(-14.7, 0, -18.45), (14.7, 0, -18.45)]))
fillet.Radius = 5
doc.recompute()

fillet2 = body.newObject("PartDesign::Fillet", "Fillet001")
fillet2.Base = (fillet, edges_at(fillet, [(-14.7, -25.5, -18.45), (14.7, -25.5, -18.45)]))
fillet2.Radius = 2

doc.recompute()
